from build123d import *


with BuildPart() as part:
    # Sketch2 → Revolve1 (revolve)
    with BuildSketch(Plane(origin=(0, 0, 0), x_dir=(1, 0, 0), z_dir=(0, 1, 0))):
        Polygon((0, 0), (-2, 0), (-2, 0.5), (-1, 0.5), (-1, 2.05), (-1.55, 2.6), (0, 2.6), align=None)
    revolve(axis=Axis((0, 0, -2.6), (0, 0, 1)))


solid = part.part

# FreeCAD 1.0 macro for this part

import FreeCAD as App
import Part
import Sketcher
Q = App.Units.Quantity


def add_polygon(sketch, points):
    """Adds a closed chain of lines whose ends are joined by coincident constraints."""
    first, n = sketch.GeometryCount, len(points)
    for a, b in zip(points, points[1:] + points[:1]):
        sketch.addGeometry(Part.LineSegment(App.Vector(*a, 0), App.Vector(*b, 0)), False)
    for i in range(n):
        sketch.addConstraint(Sketcher.Constraint("Coincident", first + i, 2, first + (i + 1) % n, 1))

doc = App.newDocument("Part")
body = doc.addObject("PartDesign::Body", "Body")

# Sketch on XZ plane
sketch1 = doc.addObject("Sketcher::SketchObject", "Sketch")
body.addObject(sketch1)
sketch1.AttachmentSupport = (doc.XZ_Plane, [""])
sketch1.MapMode = "FlatFace"
add_polygon(sketch1, [(-2, 0), (0, 0), (0, -2.6), (-1.55, -2.6), (-1, -2.05), (-1, -0.5), (-2, -0.5)])  # lines 0-6
sketch1.addConstraint(Sketcher.Constraint("Horizontal", 0))
sketch1.addConstraint(Sketcher.Constraint("Vertical", 1))
sketch1.addConstraint(Sketcher.Constraint("Horizontal", 2))
sketch1.addConstraint(Sketcher.Constraint("Vertical", 4))
sketch1.addConstraint(Sketcher.Constraint("Horizontal", 5))
sketch1.addConstraint(Sketcher.Constraint("Vertical", 6))
sketch1.addConstraint(Sketcher.Constraint("Coincident", 0, 2, -1, 1))
sketch1.addConstraint(Sketcher.Constraint("Equal", 2, 4))
sketch1.addConstraint(Sketcher.Constraint("DistanceX", 0, 1, 0, 2, Q("2 mm")))
sketch1.addConstraint(Sketcher.Constraint("DistanceX", 5, 2, 5, 1, Q("1 mm")))
sketch1.addConstraint(Sketcher.Constraint("Angle", 3, Q("45 deg")))
sketch1.addConstraint(Sketcher.Constraint("DistanceY", 1, 2, 1, 1, Q("2.6 mm")))
sketch1.addConstraint(Sketcher.Constraint("DistanceY", 6, 1, 6, 2, Q("0.5 mm")))
revolution = doc.addObject("PartDesign::Revolution", "Revolution")
body.addObject(revolution)
revolution.Profile = sketch1
revolution.ReferenceAxis = (sketch1, ["V_Axis"])
revolution.Angle = 360

doc.recompute()
